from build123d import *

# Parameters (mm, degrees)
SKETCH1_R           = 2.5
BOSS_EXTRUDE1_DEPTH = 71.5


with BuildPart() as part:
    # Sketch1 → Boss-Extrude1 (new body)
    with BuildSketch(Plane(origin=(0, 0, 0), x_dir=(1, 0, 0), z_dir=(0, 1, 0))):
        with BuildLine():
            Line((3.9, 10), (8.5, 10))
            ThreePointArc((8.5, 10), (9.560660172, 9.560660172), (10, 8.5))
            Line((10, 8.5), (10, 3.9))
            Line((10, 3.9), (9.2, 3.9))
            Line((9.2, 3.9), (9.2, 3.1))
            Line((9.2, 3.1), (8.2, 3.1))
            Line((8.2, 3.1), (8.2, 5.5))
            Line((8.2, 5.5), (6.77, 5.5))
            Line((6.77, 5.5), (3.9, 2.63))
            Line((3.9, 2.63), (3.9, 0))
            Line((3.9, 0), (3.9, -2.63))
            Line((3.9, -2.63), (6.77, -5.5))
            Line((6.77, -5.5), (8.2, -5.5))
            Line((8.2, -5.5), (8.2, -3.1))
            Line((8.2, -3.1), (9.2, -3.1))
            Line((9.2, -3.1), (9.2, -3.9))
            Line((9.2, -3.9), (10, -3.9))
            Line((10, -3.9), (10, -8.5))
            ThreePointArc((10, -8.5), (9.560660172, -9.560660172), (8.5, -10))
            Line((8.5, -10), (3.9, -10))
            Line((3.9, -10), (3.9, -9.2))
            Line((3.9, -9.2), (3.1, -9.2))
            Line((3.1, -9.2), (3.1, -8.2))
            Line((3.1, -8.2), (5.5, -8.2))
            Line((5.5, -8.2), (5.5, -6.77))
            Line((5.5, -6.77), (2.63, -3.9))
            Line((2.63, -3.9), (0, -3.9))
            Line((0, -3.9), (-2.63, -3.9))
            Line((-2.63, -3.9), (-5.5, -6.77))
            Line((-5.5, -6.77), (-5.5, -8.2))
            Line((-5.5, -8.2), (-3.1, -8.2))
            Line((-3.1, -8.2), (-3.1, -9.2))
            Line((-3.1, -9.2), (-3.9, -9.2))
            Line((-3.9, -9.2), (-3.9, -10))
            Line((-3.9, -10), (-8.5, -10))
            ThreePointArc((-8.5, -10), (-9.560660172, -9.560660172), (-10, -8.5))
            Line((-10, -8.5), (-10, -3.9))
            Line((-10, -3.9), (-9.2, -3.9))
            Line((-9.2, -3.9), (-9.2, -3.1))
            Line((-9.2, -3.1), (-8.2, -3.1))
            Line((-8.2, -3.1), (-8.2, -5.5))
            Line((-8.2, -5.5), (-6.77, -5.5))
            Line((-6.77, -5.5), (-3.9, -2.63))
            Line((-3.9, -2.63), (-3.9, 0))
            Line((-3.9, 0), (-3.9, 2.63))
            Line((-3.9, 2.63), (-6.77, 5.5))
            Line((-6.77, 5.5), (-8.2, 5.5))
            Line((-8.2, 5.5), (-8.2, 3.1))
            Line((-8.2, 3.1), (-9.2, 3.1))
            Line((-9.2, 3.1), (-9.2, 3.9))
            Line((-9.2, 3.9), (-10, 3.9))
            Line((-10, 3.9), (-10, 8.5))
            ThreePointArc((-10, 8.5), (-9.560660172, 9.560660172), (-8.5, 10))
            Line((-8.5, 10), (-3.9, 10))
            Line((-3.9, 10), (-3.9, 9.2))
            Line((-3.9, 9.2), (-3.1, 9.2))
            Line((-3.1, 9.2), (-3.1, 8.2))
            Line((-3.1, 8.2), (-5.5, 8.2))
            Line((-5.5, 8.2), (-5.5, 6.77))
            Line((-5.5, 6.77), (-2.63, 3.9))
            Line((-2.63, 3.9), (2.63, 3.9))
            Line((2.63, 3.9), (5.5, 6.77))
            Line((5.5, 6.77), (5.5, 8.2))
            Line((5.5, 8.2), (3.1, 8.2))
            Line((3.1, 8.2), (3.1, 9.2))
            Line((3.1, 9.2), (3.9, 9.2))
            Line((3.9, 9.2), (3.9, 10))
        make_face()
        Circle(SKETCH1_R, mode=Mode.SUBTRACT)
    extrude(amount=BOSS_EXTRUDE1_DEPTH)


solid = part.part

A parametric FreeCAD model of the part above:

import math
import FreeCAD as App
import Part
import Sketcher
from FreeCAD import Vector
Q = App.Units.Quantity

doc = App.newDocument("Part")
body = doc.addObject("PartDesign::Body", "Body")

# Sketch on XZ plane
sketch1 = body.newObject("Sketcher::SketchObject", "Sketch")
sketch1.AttachmentSupport = (doc.getObject("XZ_Plane"), [""])
sketch1.MapMode = "FlatFace"
sketch1.addGeometry([
    Part.LineSegment(Vector(8.5, -10, 0), Vector(3.9, -10, 0)),  # 0
    Part.LineSegment(Vector(3.9, -10, 0), Vector(3.9, -9.2, 0)),  # 1
    Part.LineSegment(Vector(3.9, -9.2, 0), Vector(3.1, -9.2, 0)),  # 2
    Part.LineSegment(Vector(3.1, -9.2, 0), Vector(3.1, -8.2, 0)),  # 3
    Part.LineSegment(Vector(3.1, -8.2, 0), Vector(5.5, -8.2, 0)),  # 4
    Part.LineSegment(Vector(5.5, -8.2, 0), Vector(5.5, -6.8, 0)),  # 5
    Part.LineSegment(Vector(5.5, -6.8, 0), Vector(2.6, -3.9, 0)),  # 6
    Part.LineSegment(Vector(2.6, -3.9, 0), Vector(-2.6, -3.9, 0)),  # 7
    Part.LineSegment(Vector(-2.6, -3.9, 0), Vector(-5.5, -6.8, 0)),  # 8
    Part.LineSegment(Vector(-5.5, -6.8, 0), Vector(-5.5, -8.2, 0)),  # 9
    Part.LineSegment(Vector(-5.5, -8.2, 0), Vector(-3.1, -8.2, 0)),  # 10
    Part.LineSegment(Vector(-3.1, -8.2, 0), Vector(-3.1, -9.2, 0)),  # 11
    Part.LineSegment(Vector(-3.1, -9.2, 0), Vector(-3.9, -9.2, 0)),  # 12
    Part.LineSegment(Vector(-3.9, -9.2, 0), Vector(-3.9, -10, 0)),  # 13
    Part.LineSegment(Vector(-3.9, -10, 0), Vector(-8.5, -10, 0)),  # 14
    Part.ArcOfCircle(Part.Circle(Vector(-8.5, -8.5, 0), Vector(0, 0, 1), 1.5), math.radians(180), math.radians(270)),  # 15
    Part.LineSegment(Vector(-10, -8.5, 0), Vector(-10, -3.9, 0)),  # 16
    Part.LineSegment(Vector(-10, -3.9, 0), Vector(-9.2, -3.9, 0)),  # 17
    Part.LineSegment(Vector(-9.2, -3.9, 0), Vector(-9.2, -3.1, 0)),  # 18
    Part.LineSegment(Vector(-9.2, -3.1, 0), Vector(-8.2, -3.1, 0)),  # 19
    Part.LineSegment(Vector(-8.2, -3.1, 0), Vector(-8.2, -5.5, 0)),  # 20
    Part.LineSegment(Vector(-8.2, -5.5, 0), Vector(-6.8, -5.5, 0)),  # 21
    Part.LineSegment(Vector(-6.8, -5.5, 0), Vector(-3.9, -2.6, 0)),  # 22
    Part.LineSegment(Vector(-3.9, -2.6, 0), Vector(-3.9, 2.6, 0)),  # 23
    Part.LineSegment(Vector(-3.9, 2.6, 0), Vector(-6.8, 5.5, 0)),  # 24
    Part.LineSegment(Vector(-6.8, 5.5, 0), Vector(-8.2, 5.5, 0)),  # 25
    Part.LineSegment(Vector(-8.2, 5.5, 0), Vector(-8.2, 3.1, 0)),  # 26
    Part.LineSegment(Vector(-8.2, 3.1, 0), Vector(-9.2, 3.1, 0)),  # 27
    Part.LineSegment(Vector(-9.2, 3.1, 0), Vector(-9.2, 3.9, 0)),  # 28
    Part.LineSegment(Vector(-9.2, 3.9, 0), Vector(-10, 3.9, 0)),  # 29
    Part.LineSegment(Vector(-10, 3.9, 0), Vector(-10, 8.5, 0)),  # 30
    Part.ArcOfCircle(Part.Circle(Vector(-8.5, 8.5, 0), Vector(0, 0, 1), 1.5), math.radians(90), math.radians(180)),  # 31
    Part.LineSegment(Vector(-8.5, 10, 0), Vector(-3.9, 10, 0)),  # 32
    Part.LineSegment(Vector(-3.9, 10, 0), Vector(-3.9, 9.2, 0)),  # 33
    Part.LineSegment(Vector(-3.9, 9.2, 0), Vector(-3.1, 9.2, 0)),  # 34
    Part.LineSegment(Vector(-3.1, 9.2, 0), Vector(-3.1, 8.2, 0)),  # 35
    Part.LineSegment(Vector(-3.1, 8.2, 0), Vector(-5.5, 8.2, 0)),  # 36
    Part.LineSegment(Vector(-5.5, 8.2, 0), Vector(-5.5, 6.8, 0)),  # 37
    Part.LineSegment(Vector(-5.5, 6.8, 0), Vector(-2.6, 3.9, 0)),  # 38
    Part.LineSegment(Vector(-2.6, 3.9, 0), Vector(2.6, 3.9, 0)),  # 39
    Part.LineSegment(Vector(2.6, 3.9, 0), Vector(5.5, 6.8, 0)),  # 40
    Part.LineSegment(Vector(5.5, 6.8, 0), Vector(5.5, 8.2, 0)),  # 41
    Part.LineSegment(Vector(5.5, 8.2, 0), Vector(3.1, 8.2, 0)),  # 42
    Part.LineSegment(Vector(3.1, 8.2, 0), Vector(3.1, 9.2, 0)),  # 43
    Part.LineSegment(Vector(3.1, 9.2, 0), Vector(3.9, 9.2, 0)),  # 44
    Part.LineSegment(Vector(3.9, 9.2, 0), Vector(3.9, 10, 0)),  # 45
    Part.LineSegment(Vector(3.9, 10, 0), Vector(8.5, 10, 0)),  # 46
    Part.ArcOfCircle(Part.Circle(Vector(8.5, 8.5, 0), Vector(0, 0, 1), 1.5), math.radians(0), math.radians(90)),  # 47
    Part.LineSegment(Vector(10, 8.5, 0), Vector(10, 3.9, 0)),  # 48
    Part.LineSegment(Vector(10, 3.9, 0), Vector(9.2, 3.9, 0)),  # 49
    Part.LineSegment(Vector(9.2, 3.9, 0), Vector(9.2, 3.1, 0)),  # 50
    Part.LineSegment(Vector(9.2, 3.1, 0), Vector(8.2, 3.1, 0)),  # 51
    Part.LineSegment(Vector(8.2, 3.1, 0), Vector(8.2, 5.5, 0)),  # 52
    Part.LineSegment(Vector(8.2, 5.5, 0), Vector(6.8, 5.5, 0)),  # 53
    Part.LineSegment(Vector(6.8, 5.5, 0), Vector(3.9, 2.6, 0)),  # 54
    Part.LineSegment(Vector(3.9, 2.6, 0), Vector(3.9, -2.6, 0)),  # 55
    Part.LineSegment(Vector(3.9, -2.6, 0), Vector(6.8, -5.5, 0)),  # 56
    Part.LineSegment(Vector(6.8, -5.5, 0), Vector(8.2, -5.5, 0)),  # 57
    Part.LineSegment(Vector(8.2, -5.5, 0), Vector(8.2, -3.1, 0)),  # 58
    Part.LineSegment(Vector(8.2, -3.1, 0), Vector(9.2, -3.1, 0)),  # 59
    Part.LineSegment(Vector(9.2, -3.1, 0), Vector(9.2, -3.9, 0)),  # 60
    Part.LineSegment(Vector(9.2, -3.9, 0), Vector(10, -3.9, 0)),  # 61
    Part.LineSegment(Vector(10, -3.9, 0), Vector(10, -8.5, 0)),  # 62
    Part.ArcOfCircle(Part.Circle(Vector(8.5, -8.5, 0), Vector(0, 0, 1), 1.5), math.radians(-90), math.radians(0)),  # 63
    Part.Circle(Vector(0, 0, 0), Vector(0, 0, 1), 2.5),  # 64
], False)
sketch1.addConstraint([
    Sketcher.Constraint("Coincident", 0, 2, 1, 1),
    Sketcher.Constraint("Coincident", 1, 2, 2, 1),
    Sketcher.Constraint("Coincident", 2, 2, 3, 1),
    Sketcher.Constraint("Coincident", 3, 2, 4, 1),
    Sketcher.Constraint("Coincident", 4, 2, 5, 1),
    Sketcher.Constraint("Coincident", 5, 2, 6, 1),
    Sketcher.Constraint("Coincident", 6, 2, 7, 1),
    Sketcher.Constraint("Coincident", 7, 2, 8, 1),
    Sketcher.Constraint("Coincident", 8, 2, 9, 1),
    Sketcher.Constraint("Coincident", 9, 2, 10, 1),
    Sketcher.Constraint("Coincident", 10, 2, 11, 1),
    Sketcher.Constraint("Coincident", 11, 2, 12, 1),
    Sketcher.Constraint("Coincident", 12, 2, 13, 1),
    Sketcher.Constraint("Coincident", 13, 2, 14, 1),
    Sketcher.Constraint("Tangent", 14, 2, 15, 2),
    Sketcher.Constraint("Tangent", 15, 1, 16, 1),
    Sketcher.Constraint("Coincident", 16, 2, 17, 1),
    Sketcher.Constraint("Coincident", 17, 2, 18, 1),
    Sketcher.Constraint("Coincident", 18, 2, 19, 1),
    Sketcher.Constraint("Coincident", 19, 2, 20, 1),
    Sketcher.Constraint("Coincident", 20, 2, 21, 1),
    Sketcher.Constraint("Coincident", 21, 2, 22, 1),
    Sketcher.Constraint("Coincident", 22, 2, 23, 1),
    Sketcher.Constraint("Coincident", 23, 2, 24, 1),
    Sketcher.Constraint("Coincident", 24, 2, 25, 1),
    Sketcher.Constraint("Coincident", 25, 2, 26, 1),
    Sketcher.Constraint("Coincident", 26, 2, 27, 1),
    Sketcher.Constraint("Coincident", 27, 2, 28, 1),
    Sketcher.Constraint("Coincident", 28, 2, 29, 1),
    Sketcher.Constraint("Coincident", 29, 2, 30, 1),
    Sketcher.Constraint("Tangent", 30, 2, 31, 2),
    Sketcher.Constraint("Tangent", 31, 1, 32, 1),
    Sketcher.Constraint("Coincident", 32, 2, 33, 1),
    Sketcher.Constraint("Coincident", 33, 2, 34, 1),
    Sketcher.Constraint("Coincident", 34, 2, 35, 1),
    Sketcher.Constraint("Coincident", 35, 2, 36, 1),
    Sketcher.Constraint("Coincident", 36, 2, 37, 1),
    Sketcher.Constraint("Coincident", 37, 2, 38, 1),
    Sketcher.Constraint("Coincident", 38, 2, 39, 1),
    Sketcher.Constraint("Coincident", 39, 2, 40, 1),
    Sketcher.Constraint("Coincident", 40, 2, 41, 1),
    Sketcher.Constraint("Coincident", 41, 2, 42, 1),
    Sketcher.Constraint("Coincident", 42, 2, 43, 1),
    Sketcher.Constraint("Coincident", 43, 2, 44, 1),
    Sketcher.Constraint("Coincident", 44, 2, 45, 1),
    Sketcher.Constraint("Coincident", 45, 2, 46, 1),
    Sketcher.Constraint("Tangent", 46, 2, 47, 2),
    Sketcher.Constraint("Tangent", 47, 1, 48, 1),
    Sketcher.Constraint("Coincident", 48, 2, 49, 1),
    Sketcher.Constraint("Coincident", 49, 2, 50, 1),
    Sketcher.Constraint("Coincident", 50, 2, 51, 1),
    Sketcher.Constraint("Coincident", 51, 2, 52, 1),
    Sketcher.Constraint("Coincident", 52, 2, 53, 1),
    Sketcher.Constraint("Coincident", 53, 2, 54, 1),
    Sketcher.Constraint("Coincident", 54, 2, 55, 1),
    Sketcher.Constraint("Coincident", 55, 2, 56, 1),
    Sketcher.Constraint("Coincident", 56, 2, 57, 1),
    Sketcher.Constraint("Coincident", 57, 2, 58, 1),
    Sketcher.Constraint("Coincident", 58, 2, 59, 1),
    Sketcher.Constraint("Coincident", 59, 2, 60, 1),
    Sketcher.Constraint("Coincident", 60, 2, 61, 1),
    Sketcher.Constraint("Coincident", 61, 2, 62, 1),
    Sketcher.Constraint("Tangent", 62, 2, 63, 2),
    Sketcher.Constraint("Tangent", 63, 1, 0, 1),
    Sketcher.Constraint("Horizontal", 0),
    Sketcher.Constraint("Vertical", 1),
    Sketcher.Constraint("Horizontal", 2),
    Sketcher.Constraint("Vertical", 3),
    Sketcher.Constraint("Horizontal", 4),
    Sketcher.Constraint("Vertical", 5),
    Sketcher.Constraint("Horizontal", 7),
    Sketcher.Constraint("Vertical", 9),
    Sketcher.Constraint("Horizontal", 10),
    Sketcher.Constraint("Vertical", 11),
    Sketcher.Constraint("Horizontal", 12),
    Sketcher.Constraint("Vertical", 13),
    Sketcher.Constraint("Horizontal", 14),
    Sketcher.Constraint("Vertical", 16),
    Sketcher.Constraint("Horizontal", 17),
    Sketcher.Constraint("Vertical", 18),
    Sketcher.Constraint("Horizontal", 19),
    Sketcher.Constraint("Vertical", 20),
    Sketcher.Constraint("Horizontal", 21),
    Sketcher.Constraint("Vertical", 23),
    Sketcher.Constraint("Horizontal", 25),
    Sketcher.Constraint("Vertical", 26),
    Sketcher.Constraint("Horizontal", 27),
    Sketcher.Constraint("Vertical", 28),
    Sketcher.Constraint("Horizontal", 29),
    Sketcher.Constraint("Vertical", 30),
    Sketcher.Constraint("Horizontal", 32),
    Sketcher.Constraint("Vertical", 33),
    Sketcher.Constraint("Horizontal", 34),
    Sketcher.Constraint("Vertical", 35),
    Sketcher.Constraint("Horizontal", 36),
    Sketcher.Constraint("Vertical", 37),
    Sketcher.Constraint("Horizontal", 39),
    Sketcher.Constraint("Vertical", 41),
    Sketcher.Constraint("Horizontal", 42),
    Sketcher.Constraint("Vertical", 43),
    Sketcher.Constraint("Horizontal", 44),
    Sketcher.Constraint("Vertical", 45),
    Sketcher.Constraint("Horizontal", 46),
    Sketcher.Constraint("Vertical", 48),
    Sketcher.Constraint("Horizontal", 49),
    Sketcher.Constraint("Vertical", 50),
    Sketcher.Constraint("Horizontal", 51),
    Sketcher.Constraint("Vertical", 52),
    Sketcher.Constraint("Horizontal", 53),
    Sketcher.Constraint("Vertical", 55),
    Sketcher.Constraint("Horizontal", 57),
    Sketcher.Constraint("Vertical", 58),
    Sketcher.Constraint("Horizontal", 59),
    Sketcher.Constraint("Vertical", 60),
    Sketcher.Constraint("Horizontal", 61),
    Sketcher.Constraint("Vertical", 62),
    Sketcher.Constraint("Coincident", 64, 3, -1, 1),
    Sketcher.Constraint("Equal", 15, 31),
    Sketcher.Constraint("Equal", 31, 47),
    Sketcher.Constraint("Equal", 47, 63),
    Sketcher.Constraint("Symmetric", 15, 3, 47, 3, -1, 1),
    Sketcher.Constraint("Symmetric", 31, 3, 63, 3, -1, 1),
    Sketcher.Constraint("Symmetric", 1, 2, 33, 2, -1, 1),
    Sketcher.Constraint("Symmetric", 3, 2, 35, 2, -1, 1),
    Sketcher.Constraint("Symmetric", 5, 2, 37, 2, -1, 1),
    Sketcher.Constraint("Symmetric", 6, 2, 38, 2, -1, 1),
    Sketcher.Constraint("Symmetric", 8, 2, 40, 2, -1, 1),
    Sketcher.Constraint("Symmetric", 10, 2, 42, 2, -1, 1),
    Sketcher.Constraint("Symmetric", 12, 2, 44, 2, -1, 1),
    Sketcher.Constraint("Symmetric", 17, 2, 49, 2, -1, 1),
    Sketcher.Constraint("Symmetric", 19, 2, 51, 2, -1, 1),
    Sketcher.Constraint("Symmetric", 21, 2, 53, 2, -1, 1),
    Sketcher.Constraint("Symmetric", 22, 2, 54, 2, -1, 1),
    Sketcher.Constraint("Symmetric", 24, 2, 56, 2, -1, 1),
    Sketcher.Constraint("Symmetric", 26, 2, 58, 2, -1, 1),
    Sketcher.Constraint("Symmetric", 28, 2, 60, 2, -1, 1),
    Sketcher.Constraint("Symmetric", 31, 3, 47, 3, -2),
    Sketcher.Constraint("Symmetric", 5, 2, 8, 2, -2),
    Sketcher.Constraint("Symmetric", 3, 2, 10, 2, -2),
    Sketcher.Constraint("Symmetric", 1, 2, 12, 2, -2),
    Sketcher.Constraint("Symmetric", 28, 2, 49, 2, -2),
    Sketcher.Constraint("Symmetric", 26, 2, 51, 2, -2),
    Sketcher.Constraint("Symmetric", 24, 2, 53, 2, -2),
    Sketcher.Constraint("Perpendicular", 6, 8),
    Sketcher.Constraint("Parallel", 8, 22),
    Sketcher.Constraint("Perpendicular", 22, 24),
    Sketcher.Constraint("Perpendicular", 38, 40),
    Sketcher.Constraint("Perpendicular", 54, 56),
    Sketcher.Constraint("Horizontal", 7, 2, 16, 2),
    Sketcher.Constraint("Horizontal", 23, 2, 54, 2),
    Sketcher.Constraint("Vertical", 13, 2, 22, 2),
    Sketcher.Constraint("Equal", 12, 17),
    Sketcher.Constraint("Equal", 61, 1),
    Sketcher.Constraint("Equal", 59, 3),
    Sketcher.Constraint("Equal", 57, 5),
    Sketcher.Constraint("Equal", 46, 16),
    Sketcher.Constraint("Equal", 13, 18),
    Sketcher.Constraint("Equal", 42, 20),
    Sketcher.Constraint("Equal", 39, 23),
    Sketcher.Constraint("Diameter", 64, Q("5 mm")),
    Sketcher.Constraint("Radius", 15, Q("1.5 mm")),
    Sketcher.Constraint("DistanceX", 19, 1, 19, 2, Q("1 mm")),
    Sketcher.Constraint("DistanceX", 0, 2, 0, 1, Q("4.6 mm")),
    Sketcher.Constraint("DistanceX", 2, 2, 2, 1, Q("0.8 mm")),
    Sketcher.Constraint("DistanceX", 4, 1, 4, 2, Q("2.4 mm")),
    Sketcher.Constraint("DistanceY", 0, 2, -1, 1, Q("10 mm")),
    Sketcher.Constraint("DistanceX", 7, 2, 7, 1, Q("5.26 mm")),
])
pad1 = body.newObject("PartDesign::Pad", "Pad")
pad1.Profile = sketch1
pad1.Length = 71.5
pad1.Reversed = True

doc.recompute()
